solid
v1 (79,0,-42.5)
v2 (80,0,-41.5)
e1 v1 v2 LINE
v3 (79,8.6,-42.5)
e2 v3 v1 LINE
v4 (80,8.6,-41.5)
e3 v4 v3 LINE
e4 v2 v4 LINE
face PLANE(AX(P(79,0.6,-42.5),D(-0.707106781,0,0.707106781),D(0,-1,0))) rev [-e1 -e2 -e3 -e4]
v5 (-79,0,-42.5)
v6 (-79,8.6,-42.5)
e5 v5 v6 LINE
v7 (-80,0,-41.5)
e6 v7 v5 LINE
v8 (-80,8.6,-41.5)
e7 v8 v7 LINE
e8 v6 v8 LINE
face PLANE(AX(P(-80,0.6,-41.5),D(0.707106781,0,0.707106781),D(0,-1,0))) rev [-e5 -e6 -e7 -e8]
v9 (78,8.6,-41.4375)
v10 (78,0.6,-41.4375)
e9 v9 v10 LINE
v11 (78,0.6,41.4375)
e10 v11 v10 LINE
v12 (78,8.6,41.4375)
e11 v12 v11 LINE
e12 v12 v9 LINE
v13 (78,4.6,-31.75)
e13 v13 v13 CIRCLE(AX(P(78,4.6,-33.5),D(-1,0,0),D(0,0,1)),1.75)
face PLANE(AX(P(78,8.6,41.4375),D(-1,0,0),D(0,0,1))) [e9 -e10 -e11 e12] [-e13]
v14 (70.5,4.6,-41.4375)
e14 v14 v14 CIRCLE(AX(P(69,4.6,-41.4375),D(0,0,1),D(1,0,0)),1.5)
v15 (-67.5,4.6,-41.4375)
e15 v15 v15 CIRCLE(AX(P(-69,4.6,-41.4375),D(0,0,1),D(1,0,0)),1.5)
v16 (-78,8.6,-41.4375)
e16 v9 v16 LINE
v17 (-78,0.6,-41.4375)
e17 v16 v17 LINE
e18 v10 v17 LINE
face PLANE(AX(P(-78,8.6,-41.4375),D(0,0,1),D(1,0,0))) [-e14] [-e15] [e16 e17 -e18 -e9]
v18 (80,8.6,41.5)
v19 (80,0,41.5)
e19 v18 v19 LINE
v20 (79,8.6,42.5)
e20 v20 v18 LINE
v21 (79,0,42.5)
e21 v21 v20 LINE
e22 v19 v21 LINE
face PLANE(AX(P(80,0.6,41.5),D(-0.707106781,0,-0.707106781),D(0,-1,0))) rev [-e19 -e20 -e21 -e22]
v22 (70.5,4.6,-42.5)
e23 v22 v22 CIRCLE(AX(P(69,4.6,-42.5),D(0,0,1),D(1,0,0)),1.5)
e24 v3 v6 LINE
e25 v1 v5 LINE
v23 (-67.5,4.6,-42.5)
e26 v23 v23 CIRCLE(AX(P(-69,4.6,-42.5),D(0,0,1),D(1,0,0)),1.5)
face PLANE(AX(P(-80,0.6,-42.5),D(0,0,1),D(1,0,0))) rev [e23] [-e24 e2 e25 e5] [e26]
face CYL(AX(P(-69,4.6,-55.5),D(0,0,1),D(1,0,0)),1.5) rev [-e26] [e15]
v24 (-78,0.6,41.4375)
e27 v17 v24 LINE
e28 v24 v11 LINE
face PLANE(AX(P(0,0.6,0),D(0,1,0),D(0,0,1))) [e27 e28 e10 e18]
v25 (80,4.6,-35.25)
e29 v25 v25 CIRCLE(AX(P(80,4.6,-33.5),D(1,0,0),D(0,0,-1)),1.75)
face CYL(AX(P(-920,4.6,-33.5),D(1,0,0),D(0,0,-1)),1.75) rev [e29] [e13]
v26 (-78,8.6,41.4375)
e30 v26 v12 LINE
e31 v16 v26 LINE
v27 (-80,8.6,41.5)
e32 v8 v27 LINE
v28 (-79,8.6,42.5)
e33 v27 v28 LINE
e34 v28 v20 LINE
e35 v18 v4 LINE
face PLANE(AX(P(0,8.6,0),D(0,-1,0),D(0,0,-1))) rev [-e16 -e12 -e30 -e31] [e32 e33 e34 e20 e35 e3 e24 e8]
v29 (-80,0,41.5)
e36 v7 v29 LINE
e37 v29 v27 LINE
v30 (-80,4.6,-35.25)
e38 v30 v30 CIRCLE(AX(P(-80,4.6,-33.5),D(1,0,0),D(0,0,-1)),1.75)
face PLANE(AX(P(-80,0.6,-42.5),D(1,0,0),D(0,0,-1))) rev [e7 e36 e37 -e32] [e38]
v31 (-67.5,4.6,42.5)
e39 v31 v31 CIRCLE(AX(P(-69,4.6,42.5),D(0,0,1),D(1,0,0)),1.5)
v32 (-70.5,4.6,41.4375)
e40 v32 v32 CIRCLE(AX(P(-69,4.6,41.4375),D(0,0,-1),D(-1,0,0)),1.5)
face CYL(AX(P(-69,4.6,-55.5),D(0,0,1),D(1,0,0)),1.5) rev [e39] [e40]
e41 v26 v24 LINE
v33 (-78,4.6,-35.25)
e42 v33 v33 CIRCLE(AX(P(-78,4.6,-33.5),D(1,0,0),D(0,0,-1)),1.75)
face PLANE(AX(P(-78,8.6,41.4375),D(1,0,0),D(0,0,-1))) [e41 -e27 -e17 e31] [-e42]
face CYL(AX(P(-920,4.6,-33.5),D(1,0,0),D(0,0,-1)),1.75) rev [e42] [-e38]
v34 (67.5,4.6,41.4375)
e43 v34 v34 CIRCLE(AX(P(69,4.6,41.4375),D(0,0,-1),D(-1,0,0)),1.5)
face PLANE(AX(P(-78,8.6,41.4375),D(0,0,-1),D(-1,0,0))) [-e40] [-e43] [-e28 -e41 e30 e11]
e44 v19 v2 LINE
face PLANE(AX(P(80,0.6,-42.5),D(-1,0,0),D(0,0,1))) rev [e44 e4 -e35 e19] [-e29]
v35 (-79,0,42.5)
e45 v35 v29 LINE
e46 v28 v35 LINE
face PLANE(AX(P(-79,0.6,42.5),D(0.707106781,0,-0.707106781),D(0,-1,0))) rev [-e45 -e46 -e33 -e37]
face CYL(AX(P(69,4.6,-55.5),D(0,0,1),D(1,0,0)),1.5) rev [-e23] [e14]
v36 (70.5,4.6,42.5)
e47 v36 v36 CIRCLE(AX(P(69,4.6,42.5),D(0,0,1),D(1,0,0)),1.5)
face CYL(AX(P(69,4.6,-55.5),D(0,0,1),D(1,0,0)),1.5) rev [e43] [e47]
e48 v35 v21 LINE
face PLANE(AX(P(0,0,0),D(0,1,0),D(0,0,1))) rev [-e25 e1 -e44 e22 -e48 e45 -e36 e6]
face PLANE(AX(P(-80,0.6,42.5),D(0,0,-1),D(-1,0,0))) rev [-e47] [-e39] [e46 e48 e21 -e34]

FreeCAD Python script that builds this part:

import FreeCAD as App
import Part
import Sketcher

V = App.Vector
Q = App.Units.Quantity


def edges_at(feature, points):
    """Names of the edges that pass closest to the given points."""
    edges = feature.Shape.Edges
    near = lambda p: min(range(len(edges)), key=lambda i: edges[i].distToShape(Part.Vertex(*p))[0])
    return sorted({f"Edge{near(p) + 1}" for p in points})

doc = App.newDocument("Part")
body = doc.addObject("PartDesign::Body", "Body")

# Sketch on XZ plane
sketch1 = body.newObject("Sketcher::SketchObject", "Sketch")
sketch1.AttachmentSupport = (doc.getObject("XZ_Plane"), [""])
sketch1.MapMode = "FlatFace"
sketch1.addGeometry(Part.LineSegment(V(-80, -42, 0), V(-80, 42, 0)), False)
sketch1.addGeometry(Part.LineSegment(V(-80, 42, 0), V(80, 42, 0)), False)
sketch1.addGeometry(Part.LineSegment(V(80, 42, 0), V(80, -42, 0)), False)
sketch1.addGeometry(Part.LineSegment(V(80, -42, 0), V(-80, -42, 0)), False)
sketch1.addConstraint(Sketcher.Constraint("Coincident", 0, 2, 1, 1))
sketch1.addConstraint(Sketcher.Constraint("Coincident", 1, 2, 2, 1))
sketch1.addConstraint(Sketcher.Constraint("Coincident", 2, 2, 3, 1))
sketch1.addConstraint(Sketcher.Constraint("Coincident", 3, 2, 0, 1))
sketch1.addConstraint(Sketcher.Constraint("Vertical", 0))
sketch1.addConstraint(Sketcher.Constraint("Horizontal", 1))
sketch1.addConstraint(Sketcher.Constraint("Vertical", 2))
sketch1.addConstraint(Sketcher.Constraint("Horizontal", 3))
sketch1.addConstraint(Sketcher.Constraint("Symmetric", 0, 2, 2, 2, -1, 1))
sketch1.addConstraint(Sketcher.Constraint("DistanceX", 1, 1, 1, 2, Q("160 mm")))
sketch1.addConstraint(Sketcher.Constraint("DistanceY", 0, 1, 0, 2, Q("85 mm")))
pad1 = body.newObject("PartDesign::Pad", "Pad")
pad1.Profile = sketch1
pad1.Length = 0.6
pad1.Reversed = True

# Sketch on XZ plane
sketch2 = body.newObject("Sketcher::SketchObject", "Sketch001")
sketch2.AttachmentSupport = (doc.getObject("XZ_Plane"), [""])
sketch2.MapMode = "FlatFace"
sketch2.AttachmentOffset = App.Placement(V(0, 0, -0.6), App.Rotation())
sketch2.addGeometry(Part.LineSegment(V(-80, -42, 0), V(-80, 42, 0)), False)
sketch2.addGeometry(Part.LineSegment(V(-80, 42, 0), V(80, 42, 0)), False)
sketch2.addGeometry(Part.LineSegment(V(80, 42, 0), V(80, -42, 0)), False)
sketch2.addGeometry(Part.LineSegment(V(80, -42, 0), V(-80, -42, 0)), False)
sketch2.addGeometry(Part.LineSegment(V(78, 41, 0), V(-78, 41, 0)), False)
sketch2.addGeometry(Part.LineSegment(V(-78, 41, 0), V(-78, -41, 0)), False)
sketch2.addGeometry(Part.LineSegment(V(-78, -41, 0), V(78, -41, 0)), False)
sketch2.addGeometry(Part.LineSegment(V(78, -41, 0), V(78, 41, 0)), False)
sketch2.addConstraint(Sketcher.Constraint("Coincident", 0, 2, 1, 1))
sketch2.addConstraint(Sketcher.Constraint("Coincident", 1, 2, 2, 1))
sketch2.addConstraint(Sketcher.Constraint("Coincident", 2, 2, 3, 1))
sketch2.addConstraint(Sketcher.Constraint("Coincident", 3, 2, 0, 1))
sketch2.addConstraint(Sketcher.Constraint("Coincident", 4, 2, 5, 1))
sketch2.addConstraint(Sketcher.Constraint("Coincident", 5, 2, 6, 1))
sketch2.addConstraint(Sketcher.Constraint("Coincident", 6, 2, 7, 1))
sketch2.addConstraint(Sketcher.Constraint("Coincident", 7, 2, 4, 1))
sketch2.addConstraint(Sketcher.Constraint("Vertical", 0))
sketch2.addConstraint(Sketcher.Constraint("Horizontal", 1))
sketch2.addConstraint(Sketcher.Constraint("Vertical", 2))
sketch2.addConstraint(Sketcher.Constraint("Horizontal", 3))
sketch2.addConstraint(Sketcher.Constraint("Horizontal", 4))
sketch2.addConstraint(Sketcher.Constraint("Vertical", 5))
sketch2.addConstraint(Sketcher.Constraint("Horizontal", 6))
sketch2.addConstraint(Sketcher.Constraint("Vertical", 7))
sketch2.addConstraint(Sketcher.Constraint("Symmetric", 0, 2, 2, 2, -1, 1))
sketch2.addConstraint(Sketcher.Constraint("Symmetric", 4, 2, 6, 2, -1, 1))
sketch2.addConstraint(Sketcher.Constraint("DistanceX", 1, 1, 1, 2, Q("160 mm")))
sketch2.addConstraint(Sketcher.Constraint("DistanceX", 4, 2, 4, 1, Q("156 mm")))
sketch2.addConstraint(Sketcher.Constraint("DistanceY", 0, 1, 0, 2, Q("85 mm")))
sketch2.addConstraint(Sketcher.Constraint("DistanceY", 5, 2, 5, 1, Q("82.875 mm")))
pad2 = body.newObject("PartDesign::Pad", "Pad001")
pad2.Profile = sketch2
pad2.Length = 8
pad2.Reversed = True
doc.recompute()

chamfer = body.newObject("PartDesign::Chamfer", "Chamfer")
chamfer.Base = (pad2, edges_at(pad2, [
    (80, 4.3, 42.5),
    (-80, 4.3, 42.5),
    (-80, 4.3, -42.5),
    (80, 4.3, -42.5),
]))
chamfer.Size = 1

# Sketch on XY plane
sketch3 = body.newObject("Sketcher::SketchObject", "Sketch002")
sketch3.AttachmentSupport = (doc.getObject("XY_Plane"), [""])
sketch3.MapMode = "FlatFace"
sketch3.AttachmentOffset = App.Placement(V(0, 0, 42.5), App.Rotation())
sketch3.addGeometry(Part.Circle(V(-69, 4.6, 0), V(0, 0, 1), 1.5), False)
sketch3.addGeometry(Part.Circle(V(69, 4.6, 0), V(0, 0, 1), 1.5), False)
sketch3.addConstraint(Sketcher.Constraint("Equal", 0, 1))
sketch3.addConstraint(Sketcher.Constraint("Symmetric", 0, 3, 1, 3, -2))
sketch3.addConstraint(Sketcher.Constraint("Diameter", 0, Q("3 mm")))
sketch3.addConstraint(Sketcher.Constraint("DistanceX", 0, 3, -1, 1, Q("69 mm")))
sketch3.addConstraint(Sketcher.Constraint("DistanceY", -1, 1, 0, 3, Q("4.6 mm")))
pocket1 = body.newObject("PartDesign::Pocket", "Pocket")
pocket1.Profile = sketch3
pocket1.Length = 98

# Sketch on YZ plane
sketch4 = body.newObject("Sketcher::SketchObject", "Sketch003")
sketch4.AttachmentSupport = (doc.getObject("YZ_Plane"), [""])
sketch4.MapMode = "FlatFace"
sketch4.AttachmentOffset = App.Placement(V(0, 0, 80), App.Rotation())
sketch4.addGeometry(Part.Circle(V(4.6, -33.5, 0), V(0, 0, 1), 1.8), False)
sketch4.addConstraint(Sketcher.Constraint("Diameter", 0, Q("3.5 mm")))
sketch4.addConstraint(Sketcher.Constraint("DistanceX", -1, 1, 0, 3, Q("4.6 mm")))
sketch4.addConstraint(Sketcher.Constraint("DistanceY", 0, 3, -1, 1, Q("33.5 mm")))
pocket2 = body.newObject("PartDesign::Pocket", "Pocket001")
pocket2.Profile = sketch4
pocket2.Length = 1000

doc.recompute()
